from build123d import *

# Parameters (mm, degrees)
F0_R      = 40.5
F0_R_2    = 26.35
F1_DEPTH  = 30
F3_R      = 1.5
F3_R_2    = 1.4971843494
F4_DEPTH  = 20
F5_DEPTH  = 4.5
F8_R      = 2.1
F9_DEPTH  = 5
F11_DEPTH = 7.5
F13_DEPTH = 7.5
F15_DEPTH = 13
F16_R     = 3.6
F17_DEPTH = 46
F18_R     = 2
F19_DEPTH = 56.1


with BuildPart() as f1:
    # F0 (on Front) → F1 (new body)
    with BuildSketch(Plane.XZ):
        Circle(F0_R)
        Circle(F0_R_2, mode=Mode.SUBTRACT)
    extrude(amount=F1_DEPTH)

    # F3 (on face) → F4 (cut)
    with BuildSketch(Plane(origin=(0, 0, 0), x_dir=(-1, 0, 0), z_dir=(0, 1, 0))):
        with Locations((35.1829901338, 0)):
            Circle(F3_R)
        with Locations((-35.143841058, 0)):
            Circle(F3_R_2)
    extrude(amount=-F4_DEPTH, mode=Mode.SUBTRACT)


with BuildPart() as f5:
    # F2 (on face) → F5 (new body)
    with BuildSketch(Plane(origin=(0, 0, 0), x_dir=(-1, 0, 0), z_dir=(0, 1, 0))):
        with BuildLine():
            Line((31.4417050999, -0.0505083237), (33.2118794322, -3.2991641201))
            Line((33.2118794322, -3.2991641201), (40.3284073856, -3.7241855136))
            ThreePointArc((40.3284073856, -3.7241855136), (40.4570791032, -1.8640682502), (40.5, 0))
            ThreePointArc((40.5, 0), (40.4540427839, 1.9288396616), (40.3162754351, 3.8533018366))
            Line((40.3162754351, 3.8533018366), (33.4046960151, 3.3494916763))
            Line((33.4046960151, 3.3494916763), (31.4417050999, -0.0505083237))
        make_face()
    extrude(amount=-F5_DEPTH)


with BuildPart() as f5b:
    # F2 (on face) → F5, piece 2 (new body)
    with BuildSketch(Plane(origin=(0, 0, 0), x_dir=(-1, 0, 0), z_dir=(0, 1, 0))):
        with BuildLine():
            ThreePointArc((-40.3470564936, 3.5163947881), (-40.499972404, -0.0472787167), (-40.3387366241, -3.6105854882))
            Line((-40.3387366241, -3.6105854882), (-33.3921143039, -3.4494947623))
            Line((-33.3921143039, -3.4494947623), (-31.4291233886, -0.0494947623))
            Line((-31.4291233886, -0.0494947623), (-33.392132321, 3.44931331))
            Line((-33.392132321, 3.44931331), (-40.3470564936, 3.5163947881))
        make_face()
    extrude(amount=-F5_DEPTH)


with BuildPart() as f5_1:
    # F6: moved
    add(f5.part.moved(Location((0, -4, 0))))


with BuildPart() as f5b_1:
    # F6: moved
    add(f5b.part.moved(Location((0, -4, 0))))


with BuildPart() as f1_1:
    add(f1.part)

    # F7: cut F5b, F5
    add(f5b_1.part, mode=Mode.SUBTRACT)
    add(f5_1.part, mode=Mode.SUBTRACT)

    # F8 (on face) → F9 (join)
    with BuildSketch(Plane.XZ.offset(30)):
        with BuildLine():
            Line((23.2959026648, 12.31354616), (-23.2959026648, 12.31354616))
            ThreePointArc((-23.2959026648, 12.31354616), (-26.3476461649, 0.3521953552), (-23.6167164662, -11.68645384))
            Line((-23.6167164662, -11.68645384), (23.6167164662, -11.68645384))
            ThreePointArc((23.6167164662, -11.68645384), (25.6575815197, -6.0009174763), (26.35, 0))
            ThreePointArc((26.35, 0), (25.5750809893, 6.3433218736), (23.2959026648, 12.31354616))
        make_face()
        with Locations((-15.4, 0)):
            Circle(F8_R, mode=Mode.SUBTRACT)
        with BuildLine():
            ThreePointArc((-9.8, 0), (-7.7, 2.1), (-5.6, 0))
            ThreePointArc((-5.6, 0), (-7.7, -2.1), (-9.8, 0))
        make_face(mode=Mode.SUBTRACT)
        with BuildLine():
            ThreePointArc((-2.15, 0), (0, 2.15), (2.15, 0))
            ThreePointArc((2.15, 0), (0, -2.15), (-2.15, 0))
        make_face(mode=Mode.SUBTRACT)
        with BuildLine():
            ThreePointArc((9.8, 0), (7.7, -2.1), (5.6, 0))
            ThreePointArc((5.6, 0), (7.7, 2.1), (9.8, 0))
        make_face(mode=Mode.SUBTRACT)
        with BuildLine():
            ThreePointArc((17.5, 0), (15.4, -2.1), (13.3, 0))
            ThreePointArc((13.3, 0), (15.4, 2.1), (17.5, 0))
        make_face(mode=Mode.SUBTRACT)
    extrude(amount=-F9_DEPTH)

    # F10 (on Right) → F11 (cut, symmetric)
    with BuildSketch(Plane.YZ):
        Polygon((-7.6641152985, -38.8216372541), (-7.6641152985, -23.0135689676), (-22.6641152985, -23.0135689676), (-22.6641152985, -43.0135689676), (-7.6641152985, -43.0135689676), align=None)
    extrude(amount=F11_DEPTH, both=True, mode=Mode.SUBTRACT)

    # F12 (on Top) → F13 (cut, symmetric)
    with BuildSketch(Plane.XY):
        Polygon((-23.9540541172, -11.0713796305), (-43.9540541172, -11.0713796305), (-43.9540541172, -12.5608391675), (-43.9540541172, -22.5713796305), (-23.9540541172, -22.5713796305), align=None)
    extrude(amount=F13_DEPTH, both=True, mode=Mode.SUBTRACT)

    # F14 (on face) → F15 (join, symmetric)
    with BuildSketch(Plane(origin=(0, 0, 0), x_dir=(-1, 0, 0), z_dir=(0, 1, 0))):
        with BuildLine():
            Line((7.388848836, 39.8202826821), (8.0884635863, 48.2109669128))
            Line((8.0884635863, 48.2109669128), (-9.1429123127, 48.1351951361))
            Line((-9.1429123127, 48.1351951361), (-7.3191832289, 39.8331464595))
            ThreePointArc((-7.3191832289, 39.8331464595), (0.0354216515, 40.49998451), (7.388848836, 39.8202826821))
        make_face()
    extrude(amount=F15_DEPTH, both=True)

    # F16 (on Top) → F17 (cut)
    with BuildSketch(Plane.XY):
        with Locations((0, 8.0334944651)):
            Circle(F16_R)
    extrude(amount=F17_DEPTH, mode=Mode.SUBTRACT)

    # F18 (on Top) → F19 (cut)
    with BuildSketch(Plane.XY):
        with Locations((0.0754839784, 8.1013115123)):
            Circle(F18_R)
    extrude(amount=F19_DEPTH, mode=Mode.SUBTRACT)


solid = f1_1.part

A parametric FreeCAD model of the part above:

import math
import FreeCAD as App
import Part
import Sketcher
from FreeCAD import Vector
Q = App.Units.Quantity


def add_polygon(sketch, points):
    """Adds a closed chain of lines whose ends are joined by coincident constraints."""
    first, n = sketch.GeometryCount, len(points)
    for a, b in zip(points, points[1:] + points[:1]):
        sketch.addGeometry(Part.LineSegment(App.Vector(*a, 0), App.Vector(*b, 0)), False)
    for i in range(n):
        sketch.addConstraint(Sketcher.Constraint("Coincident", first + i, 2, first + (i + 1) % n, 1))

doc = App.newDocument("Part")
body = doc.addObject("PartDesign::Body", "Body")

# Sketch on XZ plane
sketch1 = doc.addObject("Sketcher::SketchObject", "Sketch")
body.addObject(sketch1)
sketch1.AttachmentSupport = (doc.XZ_Plane, [""])
sketch1.MapMode = "FlatFace"
sketch1.addGeometry([
    Part.Circle(Vector(0, 0, 0), Vector(0, 0, 1), 40.5),
    Part.Circle(Vector(0, 0, 0), Vector(0, 0, 1), 26.35),
], False)
sketch1.addConstraint([
    Sketcher.Constraint("Coincident", 0, 3, -1, 1),
    Sketcher.Constraint("Coincident", 1, 3, -1, 1),
    Sketcher.Constraint("Diameter", 0, 81.0),
    Sketcher.Constraint("Diameter", 1, 52.7),
])
pad1 = doc.addObject("PartDesign::Pad", "Pad")
body.addObject(pad1)
pad1.Profile = sketch1
pad1.Length = 30

# Sketch on XZ plane
sketch2 = doc.addObject("Sketcher::SketchObject", "Sketch001")
body.addObject(sketch2)
sketch2.AttachmentSupport = (doc.XZ_Plane, [""])
sketch2.MapMode = "FlatFace"
sketch2.addGeometry([
    Part.Circle(Vector(-35.18299, 0, 0), Vector(0, 0, 1), 1.5),
    Part.Circle(Vector(35.143841, 0, 0), Vector(0, 0, 1), 1.497184),
], False)
sketch2.addConstraint([
    Sketcher.Constraint("PointOnObject", 0, 3, -1),
    Sketcher.Constraint("PointOnObject", 1, 3, -1),
    Sketcher.Constraint("Diameter", 0, 3.0),
    Sketcher.Constraint("Diameter", 1, 2.994369),
    Sketcher.Constraint("DistanceX", 0, 3, -1, 1, 35.18299),
    Sketcher.Constraint("DistanceX", -1, 1, 1, 3, 35.143841),
])
pocket1 = doc.addObject("PartDesign::Pocket", "Pocket")
body.addObject(pocket1)
pocket1.Profile = sketch2
pocket1.Length = 20
pocket1.Reversed = True
body2 = doc.addObject("PartDesign::Body", "Body001")

# Sketch on XZ plane
sketch3 = doc.addObject("Sketcher::SketchObject", "Sketch002")
body2.addObject(sketch3)
sketch3.AttachmentSupport = (doc.getObject("XZ_Plane001"), [""])
sketch3.MapMode = "FlatFace"
sketch3.addGeometry([
    Part.LineSegment(Vector(-31.441705, -0.050508, 0), Vector(-33.211879, -3.299164, 0)),  # 0
    Part.LineSegment(Vector(-33.211879, -3.299164, 0), Vector(-40.328407, -3.724186, 0)),  # 1
    Part.ArcOfCircle(Part.Circle(Vector(0, 0, 0), Vector(0, 0, 1), 40.5), math.radians(180), math.radians(185.276098)),  # 2
    Part.ArcOfCircle(Part.Circle(Vector(0, 0, 0), Vector(0, 0, 1), 40.5), math.radians(174.540435), math.radians(180)),  # 3
    Part.LineSegment(Vector(-40.316275, 3.853302, 0), Vector(-33.404696, 3.349492, 0)),  # 4
    Part.LineSegment(Vector(-33.404696, 3.349492, 0), Vector(-31.441705, -0.050508, 0)),  # 5
], False)
sketch3.addConstraint([
    Sketcher.Constraint("Coincident", 0, 2, 1, 1),
    Sketcher.Constraint("Coincident", 1, 2, 2, 2),
    Sketcher.Constraint("Tangent", 2, 1, 3, 2),
    Sketcher.Constraint("Coincident", 3, 1, 4, 1),
    Sketcher.Constraint("Coincident", 4, 2, 5, 1),
    Sketcher.Constraint("Coincident", 5, 2, 0, 1),
    Sketcher.Constraint("Coincident", 2, 3, -1, 1),
    Sketcher.Constraint("Equal", 2, 3),
    Sketcher.Constraint("PointOnObject", 2, 1, -1),
    Sketcher.Constraint("Radius", 2, 40.5),
    Sketcher.Constraint("Angle", 5, Q("-60 deg")),
    Sketcher.Constraint("DistanceY", 5, 2, 4, 2, 3.4),
    Sketcher.Constraint("DistanceY", -1, 1, 3, 1, 3.853302),
    Sketcher.Constraint("Distance", 1, 7.129208),
    Sketcher.Constraint("DistanceX", 0, 2, -1, 1, 33.211879),
    Sketcher.Constraint("DistanceY", -1, 1, 4, 2, 3.349492),
    Sketcher.Constraint("DistanceY", 1, 2, 0, 2, 0.425021),
    Sketcher.Constraint("DistanceX", 3, 1, 4, 2, 6.911579),
])
pad2 = doc.addObject("PartDesign::Pad", "Pad001")
body2.addObject(pad2)
pad2.Profile = sketch3
pad2.Length = 4.5
body3 = doc.addObject("PartDesign::Body", "Body002")

# Sketch on XZ plane
sketch4 = doc.addObject("Sketcher::SketchObject", "Sketch003")
body3.addObject(sketch4)
sketch4.AttachmentSupport = (doc.getObject("XZ_Plane002"), [""])
sketch4.MapMode = "FlatFace"
sketch4.addGeometry([
    Part.ArcOfCircle(Part.Circle(Vector(0, 0, 0), Vector(0, 0, 1), 40.5), math.radians(-5.114724), math.radians(4.980953)),  # 0
    Part.LineSegment(Vector(40.338737, -3.610585, 0), Vector(33.392114, -3.449495, 0)),  # 1
    Part.LineSegment(Vector(33.392114, -3.449495, 0), Vector(31.429123, -0.049495, 0)),  # 2
    Part.LineSegment(Vector(31.429123, -0.049495, 0), Vector(33.392132, 3.449313, 0)),  # 3
    Part.LineSegment(Vector(33.392132, 3.449313, 0), Vector(40.347056, 3.516395, 0)),  # 4
], False)
sketch4.addConstraint([
    Sketcher.Constraint("Coincident", 0, 1, 1, 1),
    Sketcher.Constraint("Coincident", 1, 2, 2, 1),
    Sketcher.Constraint("Coincident", 2, 2, 3, 1),
    Sketcher.Constraint("Coincident", 3, 2, 4, 1),
    Sketcher.Constraint("Coincident", 4, 2, 0, 2),
    Sketcher.Constraint("Coincident", 0, 3, -1, 1),
    Sketcher.Constraint("Radius", 0, 40.5),
    Sketcher.Constraint("Angle", 2, Q("120 deg")),
    Sketcher.Constraint("DistanceY", 1, 2, 2, 2, 3.4),
    Sketcher.Constraint("DistanceY", 0, 1, 3, 2, 7.059899),
    Sketcher.Constraint("Distance", 1, 6.94849),
    Sketcher.Constraint("DistanceY", 0, 1, 1, 2, 0.161091),
    Sketcher.Constraint("DistanceX", 2, 2, 3, 2, 1.963009),
    Sketcher.Constraint("DistanceY", 3, 2, 4, 2, 0.067081),
    Sketcher.Constraint("DistanceX", 0, 1, 4, 2, 0.00832),
])
pad3 = doc.addObject("PartDesign::Pad", "Pad002")
body3.addObject(pad3)
pad3.Profile = sketch4
pad3.Length = 4.5
body4 = doc.addObject("PartDesign::Body", "Body003")
doc.recompute()

body2.Placement = App.Placement(Vector(0, -4, 0), App.Rotation(Vector(0, 0, 1), 0))
boolean = doc.addObject("PartDesign::Boolean", "Boolean")
body4.addObject(boolean)
boolean.Type = "Fuse"
boolean.addObjects([body2])
body5 = doc.addObject("PartDesign::Body", "Body004")
doc.recompute()

body3.Placement = App.Placement(Vector(0, -4, 0), App.Rotation(Vector(0, 0, 1), 0))
boolean2 = doc.addObject("PartDesign::Boolean", "Boolean001")
body5.addObject(boolean2)
boolean2.Type = "Fuse"
boolean2.addObjects([body3])
doc.recompute()

boolean3 = doc.addObject("PartDesign::Boolean", "Boolean002")
body.addObject(boolean3)
boolean3.Type = "Cut"
boolean3.addObjects([body5])
doc.recompute()

boolean4 = doc.addObject("PartDesign::Boolean", "Boolean003")
body.addObject(boolean4)
boolean4.Type = "Cut"
boolean4.addObjects([body4])

# Sketch on XZ plane
sketch5 = doc.addObject("Sketcher::SketchObject", "Sketch004")
body.addObject(sketch5)
sketch5.AttachmentSupport = (doc.XZ_Plane, [""])
sketch5.MapMode = "FlatFace"
sketch5.AttachmentOffset = App.Placement(Vector(0, 0, 30), App.Rotation())
sketch5.addGeometry([
    Part.LineSegment(Vector(23.295903, 12.313546, 0), Vector(-23.295903, 12.313546, 0)),  # 0
    Part.ArcOfCircle(Part.Circle(Vector(0, 0, 0), Vector(0, 0, 1), 26.35), math.radians(152.140354), math.radians(206.327964)),  # 1
    Part.LineSegment(Vector(-23.616716, -11.686454, 0), Vector(23.616716, -11.686454, 0)),  # 2
    Part.ArcOfCircle(Part.Circle(Vector(0, 0, 0), Vector(0, 0, 1), 26.35), math.radians(-26.327964), math.radians(0)),  # 3
    Part.ArcOfCircle(Part.Circle(Vector(0, 0, 0), Vector(0, 0, 1), 26.35), math.radians(0), math.radians(27.859646)),  # 4
    Part.Circle(Vector(-7.7, 0, 0), Vector(0, 0, 1), 2.1),  # 5
    Part.Circle(Vector(-15.4, 0, 0), Vector(0, 0, 1), 2.1),  # 6
    Part.Circle(Vector(0, 0, 0), Vector(0, 0, 1), 2.15),  # 7
    Part.Circle(Vector(7.7, 0, 0), Vector(0, 0, 1), 2.1),  # 8
    Part.Circle(Vector(15.4, 0, 0), Vector(0, 0, 1), 2.1),  # 9
], False)
sketch5.addConstraint([
    Sketcher.Constraint("Coincident", 0, 2, 1, 1),
    Sketcher.Constraint("Coincident", 1, 2, 2, 1),
    Sketcher.Constraint("Coincident", 2, 2, 3, 1),
    Sketcher.Constraint("Tangent", 3, 2, 4, 1),
    Sketcher.Constraint("Coincident", 4, 2, 0, 1),
    Sketcher.Constraint("Horizontal", 0),
    Sketcher.Constraint("Horizontal", 2),
    Sketcher.Constraint("Coincident", 1, 3, -1, 1),
    Sketcher.Constraint("Coincident", 3, 3, -1, 1),
    Sketcher.Constraint("Coincident", 7, 3, -1, 1),
    Sketcher.Constraint("Equal", 1, 3),
    Sketcher.Constraint("Equal", 3, 4),
    Sketcher.Constraint("Equal", 5, 6),
    Sketcher.Constraint("Equal", 6, 8),
    Sketcher.Constraint("Equal", 8, 9),
    Sketcher.Constraint("Symmetric", 5, 3, 8, 3, -1, 1),
    Sketcher.Constraint("Symmetric", 6, 3, 9, 3, -1, 1),
    Sketcher.Constraint("PointOnObject", 5, 3, -1),
    Sketcher.Constraint("PointOnObject", 6, 3, -1),
    Sketcher.Constraint("PointOnObject", 3, 2, -1),
    Sketcher.Constraint("Diameter", 5, 4.2),
    Sketcher.Constraint("Diameter", 7, 4.3),
    Sketcher.Constraint("Radius", 1, 26.35),
    Sketcher.Constraint("DistanceY", 1, 2, 0, 2, 24.0),
    Sketcher.Constraint("DistanceX", 5, 3, -1, 1, 7.7),
    Sketcher.Constraint("DistanceX", 6, 3, -1, 1, 15.4),
    Sketcher.Constraint("DistanceX", 0, 2, 0, 1, 46.591805),
])
pad4 = doc.addObject("PartDesign::Pad", "Pad003")
body.addObject(pad4)
pad4.Profile = sketch5
pad4.Length = 5
pad4.Reversed = True

# Sketch on YZ plane
sketch6 = doc.addObject("Sketcher::SketchObject", "Sketch005")
body.addObject(sketch6)
sketch6.AttachmentSupport = (doc.YZ_Plane, [""])
sketch6.MapMode = "FlatFace"
add_polygon(sketch6, [(-7.664115, -23.013569), (-22.664115, -23.013569), (-22.664115, -43.013569), (-7.664115, -43.013569)])  # lines 0-3
sketch6.addConstraint([
    Sketcher.Constraint("Horizontal", 0),
    Sketcher.Constraint("Vertical", 1),
    Sketcher.Constraint("Horizontal", 2),
    Sketcher.Constraint("Vertical", 3),
    Sketcher.Constraint("DistanceX", 0, 2, 0, 1, 15.0),
    Sketcher.Constraint("DistanceY", 1, 2, 1, 1, 20.0),
    Sketcher.Constraint("DistanceY", 0, 2, -1, 1, 23.013569),
    Sketcher.Constraint("DistanceX", 0, 2, -1, 1, 22.664115),
])
pocket2 = doc.addObject("PartDesign::Pocket", "Pocket001")
body.addObject(pocket2)
pocket2.Profile = sketch6
pocket2.Length = 15
pocket2.Midplane = True

# Sketch on XY plane
sketch7 = doc.addObject("Sketcher::SketchObject", "Sketch006")
body.addObject(sketch7)
sketch7.AttachmentSupport = (doc.XY_Plane, [""])
sketch7.MapMode = "FlatFace"
add_polygon(sketch7, [(-23.954054, -11.07138), (-43.954054, -11.07138), (-43.954054, -22.57138), (-23.954054, -22.57138)])  # lines 0-3
sketch7.addConstraint([
    Sketcher.Constraint("Horizontal", 0),
    Sketcher.Constraint("Vertical", 1),
    Sketcher.Constraint("Horizontal", 2),
    Sketcher.Constraint("Vertical", 3),
    Sketcher.Constraint("DistanceX", 0, 2, 0, 1, 20.0),
    Sketcher.Constraint("DistanceY", 1, 2, 1, 1, 11.5),
    Sketcher.Constraint("DistanceY", 0, 2, -1, 1, 11.07138),
    Sketcher.Constraint("DistanceX", 0, 2, -1, 1, 43.954054),
])
pocket3 = doc.addObject("PartDesign::Pocket", "Pocket002")
body.addObject(pocket3)
pocket3.Profile = sketch7
pocket3.Length = 15
pocket3.Midplane = True

# Sketch on XZ plane
sketch8 = doc.addObject("Sketcher::SketchObject", "Sketch007")
body.addObject(sketch8)
sketch8.AttachmentSupport = (doc.XZ_Plane, [""])
sketch8.MapMode = "FlatFace"
sketch8.addGeometry([
    Part.LineSegment(Vector(-7.388849, 39.820283, 0), Vector(-8.088464, 48.210967, 0)),
    Part.LineSegment(Vector(-8.088464, 48.210967, 0), Vector(9.142912, 48.135195, 0)),
    Part.LineSegment(Vector(9.142912, 48.135195, 0), Vector(7.319183, 39.833146, 0)),
    Part.ArcOfCircle(Part.Circle(Vector(0, 0, 0), Vector(0, 0, 1), 40.5), math.radians(79.588266), math.radians(100.511957)),
], False)
sketch8.addConstraint([
    Sketcher.Constraint("Coincident", 0, 2, 1, 1),
    Sketcher.Constraint("Coincident", 1, 2, 2, 1),
    Sketcher.Constraint("Coincident", 2, 2, 3, 1),
    Sketcher.Constraint("Coincident", 3, 2, 0, 1),
    Sketcher.Constraint("Coincident", 3, 3, -1, 1),
    Sketcher.Constraint("Radius", 3, 40.5),
    Sketcher.Constraint("Distance", 2, 8.5),
    Sketcher.Constraint("Distance", 0, 8.419801),
    Sketcher.Constraint("DistanceX", 3, 2, -1, 1, 7.388849),
    Sketcher.Constraint("DistanceY", 1, 2, 0, 2, 0.075772),
    Sketcher.Constraint("DistanceX", 2, 2, 1, 2, 1.823729),
    Sketcher.Constraint("DistanceX", 3, 2, 1, 2, 16.531761),
])
pad5 = doc.addObject("PartDesign::Pad", "Pad004")
body.addObject(pad5)
pad5.Profile = sketch8
pad5.Length = 26
pad5.Midplane = True

# Sketch on XY plane
sketch9 = doc.addObject("Sketcher::SketchObject", "Sketch008")
body.addObject(sketch9)
sketch9.AttachmentSupport = (doc.XY_Plane, [""])
sketch9.MapMode = "FlatFace"
sketch9.addGeometry(Part.Circle(Vector(0, 8.033494, 0), Vector(0, 0, 1), 3.6), False)
sketch9.addConstraint([
    Sketcher.Constraint("PointOnObject", 0, 3, -2),
    Sketcher.Constraint("Diameter", 0, 7.2),
    Sketcher.Constraint("DistanceY", -1, 1, 0, 3, 8.033494),
])
pocket4 = doc.addObject("PartDesign::Pocket", "Pocket003")
body.addObject(pocket4)
pocket4.Profile = sketch9
pocket4.Length = 46
pocket4.Reversed = True

# Sketch on XY plane
sketch10 = doc.addObject("Sketcher::SketchObject", "Sketch009")
body.addObject(sketch10)
sketch10.AttachmentSupport = (doc.XY_Plane, [""])
sketch10.MapMode = "FlatFace"
sketch10.addGeometry(Part.Circle(Vector(0.075484, 8.101312, 0), Vector(0, 0, 1), 2), False)
sketch10.addConstraint([
    Sketcher.Constraint("Diameter", 0, 4.0),
    Sketcher.Constraint("DistanceY", -1, 1, 0, 3, 8.101312),
    Sketcher.Constraint("DistanceX", -1, 1, 0, 3, 0.075484),
])
pocket5 = doc.addObject("PartDesign::Pocket", "Pocket004")
body.addObject(pocket5)
pocket5.Profile = sketch10
pocket5.Length = 56.1
pocket5.Reversed = True

doc.recompute()
